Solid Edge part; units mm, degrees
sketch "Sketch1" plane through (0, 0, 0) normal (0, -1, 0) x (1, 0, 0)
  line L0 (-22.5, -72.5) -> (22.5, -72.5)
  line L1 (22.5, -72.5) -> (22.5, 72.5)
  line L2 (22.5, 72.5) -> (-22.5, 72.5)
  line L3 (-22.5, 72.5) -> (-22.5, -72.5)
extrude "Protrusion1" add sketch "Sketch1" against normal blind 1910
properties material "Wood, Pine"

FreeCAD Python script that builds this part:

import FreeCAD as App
import Part
import Sketcher
Q = App.Units.Quantity

doc = App.newDocument("Part")
params = doc.addObject("Spreadsheet::Sheet", "Params")
for row, (alias, value) in enumerate([
    ("sketch1_width", "45 mm"),
    ("sketch1_height", "145 mm"),
    ("pad1_length", "1910 mm"),
], start=1):
    params.set(f"A{row}", alias)
    params.set(f"B{row}", "=" + value)
    params.setAlias(f"B{row}", alias)

body = doc.addObject("PartDesign::Body", "Body")

sketch1 = body.newObject("Sketcher::SketchObject", "Sketch")
sketch1.AttachmentSupport = (doc.getObject("XZ_Plane"), [""])
sketch1.MapMode = "FlatFace"
sketch1.addGeometry([
    Part.LineSegment(App.Vector(-22, 72, 0), App.Vector(-22, -72, 0)),
    Part.LineSegment(App.Vector(-22, -72, 0), App.Vector(22, -72, 0)),
    Part.LineSegment(App.Vector(22, -72, 0), App.Vector(22, 72, 0)),
    Part.LineSegment(App.Vector(22, 72, 0), App.Vector(-22, 72, 0)),
], False)
sketch1.addConstraint([
    Sketcher.Constraint("Coincident", 0, 2, 1, 1),
    Sketcher.Constraint("Coincident", 1, 2, 2, 1),
    Sketcher.Constraint("Coincident", 2, 2, 3, 1),
    Sketcher.Constraint("Coincident", 3, 2, 0, 1),
    Sketcher.Constraint("Vertical", 0),
    Sketcher.Constraint("Horizontal", 1),
    Sketcher.Constraint("Vertical", 2),
    Sketcher.Constraint("Horizontal", 3),
    Sketcher.Constraint("Symmetric", 0, 2, 2, 2, -1, 1),
    Sketcher.Constraint("DistanceX", 1, 1, 1, 2, Q("45 mm")),
    Sketcher.Constraint("DistanceY", 0, 2, 0, 1, Q("145 mm")),
])
sketch1.setExpression("Constraints[9]", "Params.sketch1_width")
sketch1.setExpression("Constraints[10]", "Params.sketch1_height")
pad1 = body.newObject("PartDesign::Pad", "Pad")
pad1.Profile = sketch1
pad1.setExpression("Length", "Params.pad1_length")
pad1.Reversed = True

doc.recompute()
